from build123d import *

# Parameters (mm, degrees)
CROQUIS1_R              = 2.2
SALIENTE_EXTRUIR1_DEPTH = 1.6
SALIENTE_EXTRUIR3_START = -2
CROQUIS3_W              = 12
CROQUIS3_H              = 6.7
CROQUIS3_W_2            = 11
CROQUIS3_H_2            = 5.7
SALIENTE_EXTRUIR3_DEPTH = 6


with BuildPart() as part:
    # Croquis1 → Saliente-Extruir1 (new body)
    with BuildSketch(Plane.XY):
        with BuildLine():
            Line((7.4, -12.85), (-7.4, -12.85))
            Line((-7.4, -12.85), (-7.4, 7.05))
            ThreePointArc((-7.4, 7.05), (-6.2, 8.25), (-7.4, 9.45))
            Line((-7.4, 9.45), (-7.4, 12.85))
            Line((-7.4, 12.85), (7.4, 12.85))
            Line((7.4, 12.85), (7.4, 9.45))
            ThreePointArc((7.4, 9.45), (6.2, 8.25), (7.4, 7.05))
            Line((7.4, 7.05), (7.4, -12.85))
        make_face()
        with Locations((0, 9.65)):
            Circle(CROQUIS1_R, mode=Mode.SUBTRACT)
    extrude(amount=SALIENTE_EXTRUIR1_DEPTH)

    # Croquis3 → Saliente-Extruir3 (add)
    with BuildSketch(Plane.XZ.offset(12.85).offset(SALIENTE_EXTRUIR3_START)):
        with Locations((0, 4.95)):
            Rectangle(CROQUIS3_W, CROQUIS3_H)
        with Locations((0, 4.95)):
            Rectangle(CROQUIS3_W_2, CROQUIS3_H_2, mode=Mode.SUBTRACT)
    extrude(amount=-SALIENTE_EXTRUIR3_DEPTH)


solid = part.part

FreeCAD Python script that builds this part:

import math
import FreeCAD as App
import Part
import Sketcher

doc = App.newDocument("Part")
body = doc.addObject("PartDesign::Body", "Body")

sketch1 = doc.addObject("Sketcher::SketchObject", "Sketch")
body.addObject(sketch1)
sketch1.AttachmentSupport = (doc.XY_Plane, [""])
sketch1.MapMode = "FlatFace"
sketch1.addGeometry(Part.LineSegment(App.Vector(-7.4, -12.8, 0), App.Vector(7.4, -12.8, 0)), False)
sketch1.addGeometry(Part.LineSegment(App.Vector(7.4, -12.8, 0), App.Vector(7.4, 7, 0)), False)
sketch1.addGeometry(Part.ArcOfCircle(Part.Circle(App.Vector(7.4, 8.2, 0), App.Vector(0, 0, 1), 1.2), math.radians(90), math.radians(270)), False)
sketch1.addGeometry(Part.LineSegment(App.Vector(7.4, 9.4, 0), App.Vector(7.4, 12.8, 0)), False)
sketch1.addGeometry(Part.LineSegment(App.Vector(7.4, 12.8, 0), App.Vector(-7.4, 12.8, 0)), False)
sketch1.addGeometry(Part.LineSegment(App.Vector(-7.4, 12.8, 0), App.Vector(-7.4, 9.4, 0)), False)
sketch1.addGeometry(Part.ArcOfCircle(Part.Circle(App.Vector(-7.4, 8.2, 0), App.Vector(0, 0, 1), 1.2), math.radians(-90), math.radians(90)), False)
sketch1.addGeometry(Part.LineSegment(App.Vector(-7.4, 7, 0), App.Vector(-7.4, -12.8, 0)), False)
sketch1.addGeometry(Part.Circle(App.Vector(0, 9.7, 0), App.Vector(0, 0, 1), 2.2), False)
sketch1.addConstraint(Sketcher.Constraint("Coincident", 0, 2, 1, 1))
sketch1.addConstraint(Sketcher.Constraint("Coincident", 1, 2, 2, 2))
sketch1.addConstraint(Sketcher.Constraint("Coincident", 2, 1, 3, 1))
sketch1.addConstraint(Sketcher.Constraint("Coincident", 3, 2, 4, 1))
sketch1.addConstraint(Sketcher.Constraint("Coincident", 4, 2, 5, 1))
sketch1.addConstraint(Sketcher.Constraint("Coincident", 5, 2, 6, 2))
sketch1.addConstraint(Sketcher.Constraint("Coincident", 6, 1, 7, 1))
sketch1.addConstraint(Sketcher.Constraint("Coincident", 7, 2, 0, 1))
sketch1.addConstraint(Sketcher.Constraint("Horizontal", 0))
sketch1.addConstraint(Sketcher.Constraint("Vertical", 1))
sketch1.addConstraint(Sketcher.Constraint("Vertical", 3))
sketch1.addConstraint(Sketcher.Constraint("Horizontal", 4))
sketch1.addConstraint(Sketcher.Constraint("Vertical", 5))
sketch1.addConstraint(Sketcher.Constraint("Vertical", 7))
sketch1.addConstraint(Sketcher.Constraint("Equal", 2, 6))
sketch1.addConstraint(Sketcher.Constraint("Symmetric", 0, 2, 4, 2, -1, 1))
sketch1.addConstraint(Sketcher.Constraint("Symmetric", 2, 3, 6, 3, -2))
sketch1.addConstraint(Sketcher.Constraint("PointOnObject", 8, 3, -2))
sketch1.addConstraint(Sketcher.Constraint("Vertical", 2, 3, 0, 2))
sketch1.addConstraint(Sketcher.Constraint("Vertical", 1, 2, 2, 1))
sketch1.addConstraint(Sketcher.Constraint("Vertical", 5, 2, 6, 1))
sketch1.addConstraint(Sketcher.Constraint("Diameter", 8, 4.4))
sketch1.addConstraint(Sketcher.Constraint("Radius", 2, 1.2))
sketch1.addConstraint(Sketcher.Constraint("DistanceX", 0, 1, 0, 2, 14.8))
sketch1.addConstraint(Sketcher.Constraint("DistanceY", 1, 1, 1, 2, 19.9))
sketch1.addConstraint(Sketcher.Constraint("DistanceY", 3, 1, 3, 2, 3.4))
sketch1.addConstraint(Sketcher.Constraint("DistanceY", 2, 3, 8, 3, 1.4))
pad1 = doc.addObject("PartDesign::Pad", "Pad")
body.addObject(pad1)
pad1.Profile = sketch1
pad1.Length = 1.6

sketch2 = doc.addObject("Sketcher::SketchObject", "Sketch001")
body.addObject(sketch2)
sketch2.AttachmentSupport = (doc.XZ_Plane, [""])
sketch2.MapMode = "FlatFace"
sketch2.AttachmentOffset = App.Placement(App.Vector(0, 0, 10.85), App.Rotation())
sketch2.addGeometry(Part.LineSegment(App.Vector(-6, 8, 0), App.Vector(-6, 2, 0)), False)
sketch2.addGeometry(Part.LineSegment(App.Vector(-6, 2, 0), App.Vector(6, 2, 0)), False)
sketch2.addGeometry(Part.LineSegment(App.Vector(6, 2, 0), App.Vector(6, 8, 0)), False)
sketch2.addGeometry(Part.LineSegment(App.Vector(6, 8, 0), App.Vector(-6, 8, 0)), False)
sketch2.addGeometry(Part.LineSegment(App.Vector(6, 2, 0), App.Vector(-6, 2, 0)), False)
sketch2.addGeometry(Part.LineSegment(App.Vector(-6, 2, 0), App.Vector(-6, 8, 0)), False)
sketch2.addGeometry(Part.LineSegment(App.Vector(-6, 8, 0), App.Vector(6, 8, 0)), False)
sketch2.addGeometry(Part.LineSegment(App.Vector(6, 8, 0), App.Vector(6, 2, 0)), False)
sketch2.addConstraint(Sketcher.Constraint("Coincident", 0, 2, 1, 1))
sketch2.addConstraint(Sketcher.Constraint("Coincident", 1, 2, 2, 1))
sketch2.addConstraint(Sketcher.Constraint("Coincident", 2, 2, 3, 1))
sketch2.addConstraint(Sketcher.Constraint("Coincident", 3, 2, 0, 1))
sketch2.addConstraint(Sketcher.Constraint("Coincident", 4, 2, 5, 1))
sketch2.addConstraint(Sketcher.Constraint("Coincident", 5, 2, 6, 1))
sketch2.addConstraint(Sketcher.Constraint("Coincident", 6, 2, 7, 1))
sketch2.addConstraint(Sketcher.Constraint("Coincident", 7, 2, 4, 1))
sketch2.addConstraint(Sketcher.Constraint("Vertical", 0))
sketch2.addConstraint(Sketcher.Constraint("Horizontal", 1))
sketch2.addConstraint(Sketcher.Constraint("Vertical", 2))
sketch2.addConstraint(Sketcher.Constraint("Horizontal", 3))
sketch2.addConstraint(Sketcher.Constraint("Horizontal", 4))
sketch2.addConstraint(Sketcher.Constraint("Vertical", 5))
sketch2.addConstraint(Sketcher.Constraint("Horizontal", 6))
sketch2.addConstraint(Sketcher.Constraint("Vertical", 7))
sketch2.addConstraint(Sketcher.Constraint("DistanceX", 1, 1, 1, 2, 12.0))
sketch2.addConstraint(Sketcher.Constraint("DistanceX", 4, 2, 4, 1, 11.0))
sketch2.addConstraint(Sketcher.Constraint("DistanceY", 0, 2, 0, 1, 6.7))
sketch2.addConstraint(Sketcher.Constraint("DistanceY", 5, 1, 5, 2, 5.7))
sketch2.addConstraint(Sketcher.Constraint("DistanceX", 0, 2, -1, 1, 6.0))
sketch2.addConstraint(Sketcher.Constraint("DistanceY", -1, 1, 0, 2, 1.6))
sketch2.addConstraint(Sketcher.Constraint("DistanceX", 4, 2, -1, 1, 5.5))
sketch2.addConstraint(Sketcher.Constraint("DistanceY", -1, 1, 4, 2, 2.1))
pad2 = doc.addObject("PartDesign::Pad", "Pad001")
body.addObject(pad2)
pad2.Profile = sketch2
pad2.Length = 6
pad2.Reversed = True

doc.recompute()
